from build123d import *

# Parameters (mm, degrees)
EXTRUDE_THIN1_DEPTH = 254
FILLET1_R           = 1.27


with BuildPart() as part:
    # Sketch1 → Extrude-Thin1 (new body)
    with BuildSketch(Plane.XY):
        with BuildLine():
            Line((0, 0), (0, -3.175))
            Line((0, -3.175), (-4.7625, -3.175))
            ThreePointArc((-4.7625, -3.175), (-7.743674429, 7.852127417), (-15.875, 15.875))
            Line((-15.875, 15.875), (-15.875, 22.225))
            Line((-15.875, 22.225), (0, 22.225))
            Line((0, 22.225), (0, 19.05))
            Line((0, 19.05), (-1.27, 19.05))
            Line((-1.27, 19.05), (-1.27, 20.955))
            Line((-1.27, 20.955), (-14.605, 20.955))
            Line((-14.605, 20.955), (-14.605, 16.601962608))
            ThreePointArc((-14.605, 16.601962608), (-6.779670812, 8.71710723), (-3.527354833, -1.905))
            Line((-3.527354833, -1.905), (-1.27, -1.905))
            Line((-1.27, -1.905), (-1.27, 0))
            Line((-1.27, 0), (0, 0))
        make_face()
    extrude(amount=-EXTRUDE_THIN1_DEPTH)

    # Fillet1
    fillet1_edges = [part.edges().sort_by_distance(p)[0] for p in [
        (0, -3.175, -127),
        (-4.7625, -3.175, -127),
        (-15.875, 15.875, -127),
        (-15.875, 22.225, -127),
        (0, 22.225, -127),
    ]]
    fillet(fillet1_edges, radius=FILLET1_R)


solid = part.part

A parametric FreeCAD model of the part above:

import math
import FreeCAD as App
import Part
import Sketcher

V = App.Vector
Q = App.Units.Quantity


def edges_at(feature, points):
    """Names of the edges that pass closest to the given points."""
    edges = feature.Shape.Edges
    near = lambda p: min(range(len(edges)), key=lambda i: edges[i].distToShape(Part.Vertex(*p))[0])
    return sorted({f"Edge{near(p) + 1}" for p in points})

doc = App.newDocument("Part")
params = doc.addObject("Spreadsheet::Sheet", "Params")
for row, (alias, value) in enumerate([
    ("sketch1_width", "0.05 in"),
    ("sketch1_height", "0.25 in"),
    ("sketch1_width2", "0.525 in"),
    ("sketch1_width3", "0.625 in"),
    ("sketch1_width4", "0.1875 in"),
    ("pad1_length", "10 in"),
    ("fillet_radius", "0.05 in"),
], start=1):
    params.set(f"A{row}", alias)
    params.set(f"B{row}", "=" + value)
    params.setAlias(f"B{row}", alias)

body = doc.addObject("PartDesign::Body", "Body")

# Sketch on XY plane
sketch1 = body.newObject("Sketcher::SketchObject", "Sketch")
sketch1.AttachmentSupport = (doc.getObject("XY_Plane"), [""])
sketch1.MapMode = "FlatFace"
sketch1.addGeometry(Part.LineSegment(V(0, -3.175, 0), V(0, 0, 0)), False)
sketch1.addGeometry(Part.LineSegment(V(0, 0, 0), V(-1.27, 0, 0)), False)
sketch1.addGeometry(Part.LineSegment(V(-1.27, 0, 0), V(-1.27, -1.905, 0)), False)
sketch1.addGeometry(Part.LineSegment(V(-1.27, -1.905, 0), V(-3.527355, -1.905, 0)), False)
sketch1.addGeometry(Part.ArcOfCircle(Part.Circle(V(-26.647321, -3.175, 0), V(0, 0, 1), 23.154821), math.radians(3.144147), math.radians(58.662492)), False)
sketch1.addGeometry(Part.LineSegment(V(-14.605, 16.601963, 0), V(-14.605, 20.955, 0)), False)
sketch1.addGeometry(Part.LineSegment(V(-14.605, 20.955, 0), V(-1.27, 20.955, 0)), False)
sketch1.addGeometry(Part.LineSegment(V(-1.27, 20.955, 0), V(-1.27, 19.05, 0)), False)
sketch1.addGeometry(Part.LineSegment(V(-1.27, 19.05, 0), V(0, 19.05, 0)), False)
sketch1.addGeometry(Part.LineSegment(V(0, 19.05, 0), V(0, 22.225, 0)), False)
sketch1.addGeometry(Part.LineSegment(V(0, 22.225, 0), V(-15.875, 22.225, 0)), False)
sketch1.addGeometry(Part.LineSegment(V(-15.875, 22.225, 0), V(-15.875, 15.875, 0)), False)
sketch1.addGeometry(Part.ArcOfCircle(Part.Circle(V(-26.647321, -3.175, 0), V(0, 0, 1), 21.884821), math.radians(0), math.radians(60.512874)), False)
sketch1.addGeometry(Part.LineSegment(V(-4.7625, -3.175, 0), V(0, -3.175, 0)), False)
sketch1.addConstraint(Sketcher.Constraint("Coincident", 0, 2, 1, 1))
sketch1.addConstraint(Sketcher.Constraint("Coincident", 1, 2, 2, 1))
sketch1.addConstraint(Sketcher.Constraint("Coincident", 2, 2, 3, 1))
sketch1.addConstraint(Sketcher.Constraint("Coincident", 3, 2, 4, 1))
sketch1.addConstraint(Sketcher.Constraint("Coincident", 4, 2, 5, 1))
sketch1.addConstraint(Sketcher.Constraint("Coincident", 5, 2, 6, 1))
sketch1.addConstraint(Sketcher.Constraint("Coincident", 6, 2, 7, 1))
sketch1.addConstraint(Sketcher.Constraint("Coincident", 7, 2, 8, 1))
sketch1.addConstraint(Sketcher.Constraint("Coincident", 8, 2, 9, 1))
sketch1.addConstraint(Sketcher.Constraint("Coincident", 9, 2, 10, 1))
sketch1.addConstraint(Sketcher.Constraint("Coincident", 10, 2, 11, 1))
sketch1.addConstraint(Sketcher.Constraint("Coincident", 11, 2, 12, 2))
sketch1.addConstraint(Sketcher.Constraint("Coincident", 12, 1, 13, 1))
sketch1.addConstraint(Sketcher.Constraint("Coincident", 13, 2, 0, 1))
sketch1.addConstraint(Sketcher.Constraint("Vertical", 0))
sketch1.addConstraint(Sketcher.Constraint("Horizontal", 1))
sketch1.addConstraint(Sketcher.Constraint("Vertical", 2))
sketch1.addConstraint(Sketcher.Constraint("Horizontal", 3))
sketch1.addConstraint(Sketcher.Constraint("Vertical", 5))
sketch1.addConstraint(Sketcher.Constraint("Horizontal", 6))
sketch1.addConstraint(Sketcher.Constraint("Vertical", 7))
sketch1.addConstraint(Sketcher.Constraint("Horizontal", 8))
sketch1.addConstraint(Sketcher.Constraint("Vertical", 9))
sketch1.addConstraint(Sketcher.Constraint("Horizontal", 10))
sketch1.addConstraint(Sketcher.Constraint("Vertical", 11))
sketch1.addConstraint(Sketcher.Constraint("Horizontal", 13))
sketch1.addConstraint(Sketcher.Constraint("Coincident", 0, 2, -1, 1))
sketch1.addConstraint(Sketcher.Constraint("Coincident", 12, 3, 4, 3))
sketch1.addConstraint(Sketcher.Constraint("PointOnObject", 8, 2, -2))
sketch1.addConstraint(Sketcher.Constraint("Horizontal", 4, 3, 12, 1))
sketch1.addConstraint(Sketcher.Constraint("Vertical", 2, 2, 6, 2))
sketch1.addConstraint(Sketcher.Constraint("Equal", 2, 7))
sketch1.addConstraint(Sketcher.Constraint("Equal", 0, 9))
sketch1.addConstraint(Sketcher.Constraint("DistanceX", 1, 2, 1, 1, Q("0.05 in")))
sketch1.addConstraint(Sketcher.Constraint("DistanceY", 11, 2, 11, 1, Q("0.25 in")))
sketch1.addConstraint(Sketcher.Constraint("DistanceY", 3, 2, 5, 2, Q("0.9 in")))
sketch1.addConstraint(Sketcher.Constraint("DistanceY", 11, 2, 5, 2, Q("0.2 in")))
sketch1.addConstraint(Sketcher.Constraint("DistanceX", 6, 1, 6, 2, Q("0.525 in")))
sketch1.addConstraint(Sketcher.Constraint("DistanceX", 10, 2, 10, 1, Q("0.625 in")))
sketch1.addConstraint(Sketcher.Constraint("DistanceX", 13, 1, 13, 2, Q("0.1875 in")))
sketch1.addConstraint(Sketcher.Constraint("DistanceY", 0, 1, 0, 2, Q("0.125 in")))
sketch1.addConstraint(Sketcher.Constraint("Radius", 4, 23.154821))
sketch1.setExpression("Constraints[33]", "Params.sketch1_width")
sketch1.setExpression("Constraints[34]", "Params.sketch1_height")
sketch1.setExpression("Constraints[37]", "Params.sketch1_width2")
sketch1.setExpression("Constraints[38]", "Params.sketch1_width3")
sketch1.setExpression("Constraints[39]", "Params.sketch1_width4")
pad1 = body.newObject("PartDesign::Pad", "Pad")
pad1.Profile = sketch1
pad1.setExpression("Length", "Params.pad1_length")
pad1.Reversed = True
doc.recompute()

fillet = body.newObject("PartDesign::Fillet", "Fillet")
fillet.Base = (pad1, edges_at(pad1, [
    (0, -3.175, -127),
    (-4.763, -3.175, -127),
    (-15.875, 15.875, -127),
    (-15.875, 22.225, -127),
    (0, 22.225, -127),
]))
fillet.setExpression("Radius", "Params.fillet_radius")

doc.recompute()
